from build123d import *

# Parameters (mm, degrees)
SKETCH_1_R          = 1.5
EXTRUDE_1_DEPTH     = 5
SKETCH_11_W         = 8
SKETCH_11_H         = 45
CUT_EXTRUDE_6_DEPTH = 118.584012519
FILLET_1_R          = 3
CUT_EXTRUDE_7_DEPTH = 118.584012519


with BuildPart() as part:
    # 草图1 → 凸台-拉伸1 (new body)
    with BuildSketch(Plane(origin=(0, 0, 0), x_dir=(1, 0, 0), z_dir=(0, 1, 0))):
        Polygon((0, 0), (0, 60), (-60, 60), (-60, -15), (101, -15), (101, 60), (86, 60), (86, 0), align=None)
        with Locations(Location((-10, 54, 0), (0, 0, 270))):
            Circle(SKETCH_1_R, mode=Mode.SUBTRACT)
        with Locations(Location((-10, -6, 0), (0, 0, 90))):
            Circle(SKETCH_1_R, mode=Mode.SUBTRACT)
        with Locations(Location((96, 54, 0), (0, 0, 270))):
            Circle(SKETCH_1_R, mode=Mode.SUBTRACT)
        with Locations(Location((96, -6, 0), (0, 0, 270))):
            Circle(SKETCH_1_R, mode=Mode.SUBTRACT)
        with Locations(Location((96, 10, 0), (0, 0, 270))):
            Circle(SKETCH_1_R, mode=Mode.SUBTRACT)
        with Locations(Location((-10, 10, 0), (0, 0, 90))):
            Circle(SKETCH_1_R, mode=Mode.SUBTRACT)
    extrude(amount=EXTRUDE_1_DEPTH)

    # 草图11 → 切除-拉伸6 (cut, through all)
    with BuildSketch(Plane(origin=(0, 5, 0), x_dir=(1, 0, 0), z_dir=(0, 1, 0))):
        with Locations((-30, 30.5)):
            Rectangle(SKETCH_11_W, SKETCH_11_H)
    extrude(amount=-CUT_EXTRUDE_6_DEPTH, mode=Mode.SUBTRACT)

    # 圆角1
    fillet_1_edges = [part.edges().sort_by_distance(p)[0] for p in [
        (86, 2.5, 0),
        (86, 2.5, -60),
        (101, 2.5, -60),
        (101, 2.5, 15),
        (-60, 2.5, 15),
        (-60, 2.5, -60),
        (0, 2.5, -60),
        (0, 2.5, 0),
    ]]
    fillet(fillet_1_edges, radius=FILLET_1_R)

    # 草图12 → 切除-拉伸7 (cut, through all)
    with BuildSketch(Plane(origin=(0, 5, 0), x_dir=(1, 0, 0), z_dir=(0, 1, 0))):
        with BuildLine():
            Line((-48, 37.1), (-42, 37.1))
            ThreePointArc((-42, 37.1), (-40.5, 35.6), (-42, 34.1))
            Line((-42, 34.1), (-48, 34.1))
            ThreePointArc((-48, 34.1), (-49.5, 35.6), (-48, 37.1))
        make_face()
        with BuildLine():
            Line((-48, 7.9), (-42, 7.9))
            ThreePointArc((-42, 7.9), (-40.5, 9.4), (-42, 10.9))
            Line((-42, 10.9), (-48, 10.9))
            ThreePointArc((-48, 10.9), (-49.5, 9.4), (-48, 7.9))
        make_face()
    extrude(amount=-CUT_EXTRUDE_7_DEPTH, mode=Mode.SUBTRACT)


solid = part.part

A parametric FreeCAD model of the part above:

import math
import FreeCAD as App
import Part
import Sketcher
from FreeCAD import Vector
Q = App.Units.Quantity


def edges_at(feature, points):
    """Names of the edges that pass closest to the given points."""
    edges = feature.Shape.Edges
    near = lambda p: min(range(len(edges)), key=lambda i: edges[i].distToShape(Part.Vertex(*p))[0])
    return sorted({f"Edge{near(p) + 1}" for p in points})


def add_polygon(sketch, points):
    """Adds a closed chain of lines whose ends are joined by coincident constraints."""
    first, n = sketch.GeometryCount, len(points)
    for a, b in zip(points, points[1:] + points[:1]):
        sketch.addGeometry(Part.LineSegment(App.Vector(*a, 0), App.Vector(*b, 0)), False)
    for i in range(n):
        sketch.addConstraint(Sketcher.Constraint("Coincident", first + i, 2, first + (i + 1) % n, 1))

doc = App.newDocument("Part")
body = doc.addObject("PartDesign::Body", "Body")

sketch1 = body.newObject("Sketcher::SketchObject", "Sketch")
sketch1.AttachmentSupport = (doc.getObject("XZ_Plane"), [""])
sketch1.MapMode = "FlatFace"
add_polygon(sketch1, [(0, 0), (0, -60), (-60, -60), (-60, 15), (101, 15), (101, -60), (86, -60), (86, 0)])
sketch1.addGeometry(Part.Circle(Vector(-10, 6, 0), Vector(0, 0, 1), 1.5), False)
sketch1.addGeometry(Part.Circle(Vector(-10, -10, 0), Vector(0, 0, 1), 1.5), False)
sketch1.addGeometry(Part.Circle(Vector(96, 6, 0), Vector(0, 0, 1), 1.5), False)
sketch1.addGeometry(Part.Circle(Vector(96, -10, 0), Vector(0, 0, 1), 1.5), False)
sketch1.addGeometry(Part.Circle(Vector(-10, -54, 0), Vector(0, 0, 1), 1.5), False)
sketch1.addGeometry(Part.Circle(Vector(96, -54, 0), Vector(0, 0, 1), 1.5), False)
sketch1.addConstraint([
    Sketcher.Constraint("Vertical", 0),
    Sketcher.Constraint("Horizontal", 1),
    Sketcher.Constraint("Vertical", 2),
    Sketcher.Constraint("Horizontal", 3),
    Sketcher.Constraint("Vertical", 4),
    Sketcher.Constraint("Horizontal", 5),
    Sketcher.Constraint("Vertical", 6),
    Sketcher.Constraint("Horizontal", 7),
    Sketcher.Constraint("Coincident", 7, 2, -1, 1),
    Sketcher.Constraint("Equal", 8, 9),
    Sketcher.Constraint("Equal", 9, 10),
    Sketcher.Constraint("Equal", 10, 11),
    Sketcher.Constraint("Equal", 11, 12),
    Sketcher.Constraint("Equal", 12, 13),
    Sketcher.Constraint("Horizontal", 8, 3, 10, 3),
    Sketcher.Constraint("Horizontal", 9, 3, 11, 3),
    Sketcher.Constraint("Horizontal", 12, 3, 13, 3),
    Sketcher.Constraint("Horizontal", 1, 2, 4, 2),
    Sketcher.Constraint("Vertical", 8, 3, 9, 3),
    Sketcher.Constraint("Vertical", 10, 3, 11, 3),
    Sketcher.Constraint("Vertical", 9, 3, 12, 3),
    Sketcher.Constraint("Vertical", 11, 3, 13, 3),
    Sketcher.Constraint("Equal", 1, 0),
    Sketcher.Constraint("Diameter", 8, Q("3 mm")),
    Sketcher.Constraint("DistanceX", 1, 2, 1, 1, Q("60 mm")),
    Sketcher.Constraint("DistanceX", 3, 1, 3, 2, Q("161 mm")),
    Sketcher.Constraint("DistanceX", 5, 2, 5, 1, Q("15 mm")),
    Sketcher.Constraint("DistanceY", 2, 1, 2, 2, Q("75 mm")),
    Sketcher.Constraint("DistanceX", 8, 3, -1, 1, Q("10 mm")),
    Sketcher.Constraint("DistanceY", -1, 1, 8, 3, Q("6 mm")),
    Sketcher.Constraint("DistanceY", 9, 3, -1, 1, Q("10 mm")),
    Sketcher.Constraint("DistanceX", -1, 1, 10, 3, Q("96 mm")),
    Sketcher.Constraint("DistanceY", 12, 3, -1, 1, Q("54 mm")),
])
pad1 = body.newObject("PartDesign::Pad", "Pad")
pad1.Profile = sketch1
pad1.Length = 5
pad1.Reversed = True

sketch2 = body.newObject("Sketcher::SketchObject", "Sketch001")
sketch2.AttachmentSupport = (doc.getObject("XZ_Plane"), [""])
sketch2.MapMode = "FlatFace"
sketch2.AttachmentOffset = App.Placement(Vector(0, 0, -5), App.Rotation())
add_polygon(sketch2, [(-34, -53), (-34, -8), (-26, -8), (-26, -53)])
sketch2.addConstraint([
    Sketcher.Constraint("Vertical", 0),
    Sketcher.Constraint("Horizontal", 1),
    Sketcher.Constraint("Vertical", 2),
    Sketcher.Constraint("Horizontal", 3),
    Sketcher.Constraint("DistanceX", 1, 1, 1, 2, Q("8 mm")),
    Sketcher.Constraint("DistanceY", 0, 1, 0, 2, Q("45 mm")),
    Sketcher.Constraint("DistanceX", 0, 2, -1, 1, Q("34 mm")),
    Sketcher.Constraint("DistanceY", 0, 2, -1, 1, Q("8 mm")),
])
pocket1 = body.newObject("PartDesign::Pocket", "Pocket")
pocket1.Profile = sketch2
pocket1.Type = "ThroughAll"
pocket1.Reversed = True
doc.recompute()

fillet = body.newObject("PartDesign::Fillet", "Fillet")
fillet.Base = (pocket1, edges_at(pocket1, [
    (86, 2.5, 0),
    (86, 2.5, -60),
    (101, 2.5, -60),
    (101, 2.5, 15),
    (-60, 2.5, 15),
    (-60, 2.5, -60),
    (0, 2.5, -60),
    (0, 2.5, 0),
]))
fillet.Radius = 3

sketch3 = body.newObject("Sketcher::SketchObject", "Sketch002")
sketch3.AttachmentSupport = (doc.getObject("XZ_Plane"), [""])
sketch3.MapMode = "FlatFace"
sketch3.AttachmentOffset = App.Placement(Vector(0, 0, -5), App.Rotation())
sketch3.addGeometry([
    Part.LineSegment(Vector(-42, -37.1, 0), Vector(-48, -37.1, 0)),
    Part.ArcOfCircle(Part.Circle(Vector(-48, -35.6, 0), Vector(0, 0, 1), 1.5), math.radians(90), math.radians(270)),
    Part.LineSegment(Vector(-48, -34.1, 0), Vector(-42, -34.1, 0)),
    Part.ArcOfCircle(Part.Circle(Vector(-42, -35.6, 0), Vector(0, 0, 1), 1.5), math.radians(-90), math.radians(90)),
    Part.LineSegment(Vector(-48, -7.9, 0), Vector(-42, -7.9, 0)),
    Part.ArcOfCircle(Part.Circle(Vector(-42, -9.4, 0), Vector(0, 0, 1), 1.5), math.radians(-90), math.radians(90)),
    Part.LineSegment(Vector(-42, -10.9, 0), Vector(-48, -10.9, 0)),
    Part.ArcOfCircle(Part.Circle(Vector(-48, -9.4, 0), Vector(0, 0, 1), 1.5), math.radians(90), math.radians(270)),
], False)
sketch3.addConstraint([
    Sketcher.Constraint("Tangent", 0, 2, 1, 2),
    Sketcher.Constraint("Tangent", 1, 1, 2, 1),
    Sketcher.Constraint("Tangent", 2, 2, 3, 2),
    Sketcher.Constraint("Tangent", 3, 1, 0, 1),
    Sketcher.Constraint("Tangent", 4, 2, 5, 2),
    Sketcher.Constraint("Tangent", 5, 1, 6, 1),
    Sketcher.Constraint("Tangent", 6, 2, 7, 2),
    Sketcher.Constraint("Tangent", 7, 1, 4, 1),
    Sketcher.Constraint("Horizontal", 0),
    Sketcher.Constraint("Horizontal", 2),
    Sketcher.Constraint("Horizontal", 4),
    Sketcher.Constraint("Horizontal", 6),
    Sketcher.Constraint("Equal", 3, 5),
    Sketcher.Constraint("Vertical", 3, 3, 5, 3),
    Sketcher.Constraint("Vertical", 1, 3, 7, 3),
    Sketcher.Constraint("Radius", 1, Q("1.5 mm")),
    Sketcher.Constraint("DistanceX", 0, 2, 0, 1, Q("6 mm")),
    Sketcher.Constraint("DistanceX", 1, 3, -1, 1, Q("48 mm")),
    Sketcher.Constraint("DistanceY", 1, 3, -1, 1, Q("35.6 mm")),
    Sketcher.Constraint("DistanceY", 5, 3, -1, 1, Q("9.4 mm")),
])
pocket2 = body.newObject("PartDesign::Pocket", "Pocket001")
pocket2.Profile = sketch3
pocket2.Type = "ThroughAll"
pocket2.Reversed = True

doc.recompute()
